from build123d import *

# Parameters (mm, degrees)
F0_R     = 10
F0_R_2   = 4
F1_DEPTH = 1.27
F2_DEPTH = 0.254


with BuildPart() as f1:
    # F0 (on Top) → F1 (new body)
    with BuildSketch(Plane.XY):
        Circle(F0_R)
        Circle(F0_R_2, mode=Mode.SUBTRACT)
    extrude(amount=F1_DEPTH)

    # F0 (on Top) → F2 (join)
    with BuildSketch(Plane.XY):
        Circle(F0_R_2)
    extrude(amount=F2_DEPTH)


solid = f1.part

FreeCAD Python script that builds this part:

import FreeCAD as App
import Part
import Sketcher
from FreeCAD import Vector

doc = App.newDocument("Part")
body = doc.addObject("PartDesign::Body", "Body")

# Sketch on XY plane
sketch1 = body.newObject("Sketcher::SketchObject", "Sketch")
sketch1.AttachmentSupport = (doc.getObject("XY_Plane"), [""])
sketch1.MapMode = "FlatFace"
sketch1.addGeometry(Part.Circle(Vector(0, 0, 0), Vector(0, 0, 1), 10), False)
sketch1.addGeometry(Part.Circle(Vector(0, 0, 0), Vector(0, 0, 1), 4), False)
sketch1.addConstraint(Sketcher.Constraint("Coincident", 0, 3, -1, 1))
sketch1.addConstraint(Sketcher.Constraint("Coincident", 1, 3, -1, 1))
sketch1.addConstraint(Sketcher.Constraint("Diameter", 0, 20.0))
sketch1.addConstraint(Sketcher.Constraint("Diameter", 1, 8.0))
pad1 = body.newObject("PartDesign::Pad", "Pad")
pad1.Profile = sketch1
pad1.Length = 1.27

# Sketch on XY plane
sketch2 = body.newObject("Sketcher::SketchObject", "Sketch001")
sketch2.AttachmentSupport = (doc.getObject("XY_Plane"), [""])
sketch2.MapMode = "FlatFace"
sketch2.addGeometry(Part.Circle(Vector(0, 0, 0), Vector(0, 0, 1), 4), False)
sketch2.addConstraint(Sketcher.Constraint("Coincident", 0, 3, -1, 1))
sketch2.addConstraint(Sketcher.Constraint("Diameter", 0, 8.0))
pad2 = body.newObject("PartDesign::Pad", "Pad001")
pad2.Profile = sketch2
pad2.Length = 0.254

doc.recompute()
